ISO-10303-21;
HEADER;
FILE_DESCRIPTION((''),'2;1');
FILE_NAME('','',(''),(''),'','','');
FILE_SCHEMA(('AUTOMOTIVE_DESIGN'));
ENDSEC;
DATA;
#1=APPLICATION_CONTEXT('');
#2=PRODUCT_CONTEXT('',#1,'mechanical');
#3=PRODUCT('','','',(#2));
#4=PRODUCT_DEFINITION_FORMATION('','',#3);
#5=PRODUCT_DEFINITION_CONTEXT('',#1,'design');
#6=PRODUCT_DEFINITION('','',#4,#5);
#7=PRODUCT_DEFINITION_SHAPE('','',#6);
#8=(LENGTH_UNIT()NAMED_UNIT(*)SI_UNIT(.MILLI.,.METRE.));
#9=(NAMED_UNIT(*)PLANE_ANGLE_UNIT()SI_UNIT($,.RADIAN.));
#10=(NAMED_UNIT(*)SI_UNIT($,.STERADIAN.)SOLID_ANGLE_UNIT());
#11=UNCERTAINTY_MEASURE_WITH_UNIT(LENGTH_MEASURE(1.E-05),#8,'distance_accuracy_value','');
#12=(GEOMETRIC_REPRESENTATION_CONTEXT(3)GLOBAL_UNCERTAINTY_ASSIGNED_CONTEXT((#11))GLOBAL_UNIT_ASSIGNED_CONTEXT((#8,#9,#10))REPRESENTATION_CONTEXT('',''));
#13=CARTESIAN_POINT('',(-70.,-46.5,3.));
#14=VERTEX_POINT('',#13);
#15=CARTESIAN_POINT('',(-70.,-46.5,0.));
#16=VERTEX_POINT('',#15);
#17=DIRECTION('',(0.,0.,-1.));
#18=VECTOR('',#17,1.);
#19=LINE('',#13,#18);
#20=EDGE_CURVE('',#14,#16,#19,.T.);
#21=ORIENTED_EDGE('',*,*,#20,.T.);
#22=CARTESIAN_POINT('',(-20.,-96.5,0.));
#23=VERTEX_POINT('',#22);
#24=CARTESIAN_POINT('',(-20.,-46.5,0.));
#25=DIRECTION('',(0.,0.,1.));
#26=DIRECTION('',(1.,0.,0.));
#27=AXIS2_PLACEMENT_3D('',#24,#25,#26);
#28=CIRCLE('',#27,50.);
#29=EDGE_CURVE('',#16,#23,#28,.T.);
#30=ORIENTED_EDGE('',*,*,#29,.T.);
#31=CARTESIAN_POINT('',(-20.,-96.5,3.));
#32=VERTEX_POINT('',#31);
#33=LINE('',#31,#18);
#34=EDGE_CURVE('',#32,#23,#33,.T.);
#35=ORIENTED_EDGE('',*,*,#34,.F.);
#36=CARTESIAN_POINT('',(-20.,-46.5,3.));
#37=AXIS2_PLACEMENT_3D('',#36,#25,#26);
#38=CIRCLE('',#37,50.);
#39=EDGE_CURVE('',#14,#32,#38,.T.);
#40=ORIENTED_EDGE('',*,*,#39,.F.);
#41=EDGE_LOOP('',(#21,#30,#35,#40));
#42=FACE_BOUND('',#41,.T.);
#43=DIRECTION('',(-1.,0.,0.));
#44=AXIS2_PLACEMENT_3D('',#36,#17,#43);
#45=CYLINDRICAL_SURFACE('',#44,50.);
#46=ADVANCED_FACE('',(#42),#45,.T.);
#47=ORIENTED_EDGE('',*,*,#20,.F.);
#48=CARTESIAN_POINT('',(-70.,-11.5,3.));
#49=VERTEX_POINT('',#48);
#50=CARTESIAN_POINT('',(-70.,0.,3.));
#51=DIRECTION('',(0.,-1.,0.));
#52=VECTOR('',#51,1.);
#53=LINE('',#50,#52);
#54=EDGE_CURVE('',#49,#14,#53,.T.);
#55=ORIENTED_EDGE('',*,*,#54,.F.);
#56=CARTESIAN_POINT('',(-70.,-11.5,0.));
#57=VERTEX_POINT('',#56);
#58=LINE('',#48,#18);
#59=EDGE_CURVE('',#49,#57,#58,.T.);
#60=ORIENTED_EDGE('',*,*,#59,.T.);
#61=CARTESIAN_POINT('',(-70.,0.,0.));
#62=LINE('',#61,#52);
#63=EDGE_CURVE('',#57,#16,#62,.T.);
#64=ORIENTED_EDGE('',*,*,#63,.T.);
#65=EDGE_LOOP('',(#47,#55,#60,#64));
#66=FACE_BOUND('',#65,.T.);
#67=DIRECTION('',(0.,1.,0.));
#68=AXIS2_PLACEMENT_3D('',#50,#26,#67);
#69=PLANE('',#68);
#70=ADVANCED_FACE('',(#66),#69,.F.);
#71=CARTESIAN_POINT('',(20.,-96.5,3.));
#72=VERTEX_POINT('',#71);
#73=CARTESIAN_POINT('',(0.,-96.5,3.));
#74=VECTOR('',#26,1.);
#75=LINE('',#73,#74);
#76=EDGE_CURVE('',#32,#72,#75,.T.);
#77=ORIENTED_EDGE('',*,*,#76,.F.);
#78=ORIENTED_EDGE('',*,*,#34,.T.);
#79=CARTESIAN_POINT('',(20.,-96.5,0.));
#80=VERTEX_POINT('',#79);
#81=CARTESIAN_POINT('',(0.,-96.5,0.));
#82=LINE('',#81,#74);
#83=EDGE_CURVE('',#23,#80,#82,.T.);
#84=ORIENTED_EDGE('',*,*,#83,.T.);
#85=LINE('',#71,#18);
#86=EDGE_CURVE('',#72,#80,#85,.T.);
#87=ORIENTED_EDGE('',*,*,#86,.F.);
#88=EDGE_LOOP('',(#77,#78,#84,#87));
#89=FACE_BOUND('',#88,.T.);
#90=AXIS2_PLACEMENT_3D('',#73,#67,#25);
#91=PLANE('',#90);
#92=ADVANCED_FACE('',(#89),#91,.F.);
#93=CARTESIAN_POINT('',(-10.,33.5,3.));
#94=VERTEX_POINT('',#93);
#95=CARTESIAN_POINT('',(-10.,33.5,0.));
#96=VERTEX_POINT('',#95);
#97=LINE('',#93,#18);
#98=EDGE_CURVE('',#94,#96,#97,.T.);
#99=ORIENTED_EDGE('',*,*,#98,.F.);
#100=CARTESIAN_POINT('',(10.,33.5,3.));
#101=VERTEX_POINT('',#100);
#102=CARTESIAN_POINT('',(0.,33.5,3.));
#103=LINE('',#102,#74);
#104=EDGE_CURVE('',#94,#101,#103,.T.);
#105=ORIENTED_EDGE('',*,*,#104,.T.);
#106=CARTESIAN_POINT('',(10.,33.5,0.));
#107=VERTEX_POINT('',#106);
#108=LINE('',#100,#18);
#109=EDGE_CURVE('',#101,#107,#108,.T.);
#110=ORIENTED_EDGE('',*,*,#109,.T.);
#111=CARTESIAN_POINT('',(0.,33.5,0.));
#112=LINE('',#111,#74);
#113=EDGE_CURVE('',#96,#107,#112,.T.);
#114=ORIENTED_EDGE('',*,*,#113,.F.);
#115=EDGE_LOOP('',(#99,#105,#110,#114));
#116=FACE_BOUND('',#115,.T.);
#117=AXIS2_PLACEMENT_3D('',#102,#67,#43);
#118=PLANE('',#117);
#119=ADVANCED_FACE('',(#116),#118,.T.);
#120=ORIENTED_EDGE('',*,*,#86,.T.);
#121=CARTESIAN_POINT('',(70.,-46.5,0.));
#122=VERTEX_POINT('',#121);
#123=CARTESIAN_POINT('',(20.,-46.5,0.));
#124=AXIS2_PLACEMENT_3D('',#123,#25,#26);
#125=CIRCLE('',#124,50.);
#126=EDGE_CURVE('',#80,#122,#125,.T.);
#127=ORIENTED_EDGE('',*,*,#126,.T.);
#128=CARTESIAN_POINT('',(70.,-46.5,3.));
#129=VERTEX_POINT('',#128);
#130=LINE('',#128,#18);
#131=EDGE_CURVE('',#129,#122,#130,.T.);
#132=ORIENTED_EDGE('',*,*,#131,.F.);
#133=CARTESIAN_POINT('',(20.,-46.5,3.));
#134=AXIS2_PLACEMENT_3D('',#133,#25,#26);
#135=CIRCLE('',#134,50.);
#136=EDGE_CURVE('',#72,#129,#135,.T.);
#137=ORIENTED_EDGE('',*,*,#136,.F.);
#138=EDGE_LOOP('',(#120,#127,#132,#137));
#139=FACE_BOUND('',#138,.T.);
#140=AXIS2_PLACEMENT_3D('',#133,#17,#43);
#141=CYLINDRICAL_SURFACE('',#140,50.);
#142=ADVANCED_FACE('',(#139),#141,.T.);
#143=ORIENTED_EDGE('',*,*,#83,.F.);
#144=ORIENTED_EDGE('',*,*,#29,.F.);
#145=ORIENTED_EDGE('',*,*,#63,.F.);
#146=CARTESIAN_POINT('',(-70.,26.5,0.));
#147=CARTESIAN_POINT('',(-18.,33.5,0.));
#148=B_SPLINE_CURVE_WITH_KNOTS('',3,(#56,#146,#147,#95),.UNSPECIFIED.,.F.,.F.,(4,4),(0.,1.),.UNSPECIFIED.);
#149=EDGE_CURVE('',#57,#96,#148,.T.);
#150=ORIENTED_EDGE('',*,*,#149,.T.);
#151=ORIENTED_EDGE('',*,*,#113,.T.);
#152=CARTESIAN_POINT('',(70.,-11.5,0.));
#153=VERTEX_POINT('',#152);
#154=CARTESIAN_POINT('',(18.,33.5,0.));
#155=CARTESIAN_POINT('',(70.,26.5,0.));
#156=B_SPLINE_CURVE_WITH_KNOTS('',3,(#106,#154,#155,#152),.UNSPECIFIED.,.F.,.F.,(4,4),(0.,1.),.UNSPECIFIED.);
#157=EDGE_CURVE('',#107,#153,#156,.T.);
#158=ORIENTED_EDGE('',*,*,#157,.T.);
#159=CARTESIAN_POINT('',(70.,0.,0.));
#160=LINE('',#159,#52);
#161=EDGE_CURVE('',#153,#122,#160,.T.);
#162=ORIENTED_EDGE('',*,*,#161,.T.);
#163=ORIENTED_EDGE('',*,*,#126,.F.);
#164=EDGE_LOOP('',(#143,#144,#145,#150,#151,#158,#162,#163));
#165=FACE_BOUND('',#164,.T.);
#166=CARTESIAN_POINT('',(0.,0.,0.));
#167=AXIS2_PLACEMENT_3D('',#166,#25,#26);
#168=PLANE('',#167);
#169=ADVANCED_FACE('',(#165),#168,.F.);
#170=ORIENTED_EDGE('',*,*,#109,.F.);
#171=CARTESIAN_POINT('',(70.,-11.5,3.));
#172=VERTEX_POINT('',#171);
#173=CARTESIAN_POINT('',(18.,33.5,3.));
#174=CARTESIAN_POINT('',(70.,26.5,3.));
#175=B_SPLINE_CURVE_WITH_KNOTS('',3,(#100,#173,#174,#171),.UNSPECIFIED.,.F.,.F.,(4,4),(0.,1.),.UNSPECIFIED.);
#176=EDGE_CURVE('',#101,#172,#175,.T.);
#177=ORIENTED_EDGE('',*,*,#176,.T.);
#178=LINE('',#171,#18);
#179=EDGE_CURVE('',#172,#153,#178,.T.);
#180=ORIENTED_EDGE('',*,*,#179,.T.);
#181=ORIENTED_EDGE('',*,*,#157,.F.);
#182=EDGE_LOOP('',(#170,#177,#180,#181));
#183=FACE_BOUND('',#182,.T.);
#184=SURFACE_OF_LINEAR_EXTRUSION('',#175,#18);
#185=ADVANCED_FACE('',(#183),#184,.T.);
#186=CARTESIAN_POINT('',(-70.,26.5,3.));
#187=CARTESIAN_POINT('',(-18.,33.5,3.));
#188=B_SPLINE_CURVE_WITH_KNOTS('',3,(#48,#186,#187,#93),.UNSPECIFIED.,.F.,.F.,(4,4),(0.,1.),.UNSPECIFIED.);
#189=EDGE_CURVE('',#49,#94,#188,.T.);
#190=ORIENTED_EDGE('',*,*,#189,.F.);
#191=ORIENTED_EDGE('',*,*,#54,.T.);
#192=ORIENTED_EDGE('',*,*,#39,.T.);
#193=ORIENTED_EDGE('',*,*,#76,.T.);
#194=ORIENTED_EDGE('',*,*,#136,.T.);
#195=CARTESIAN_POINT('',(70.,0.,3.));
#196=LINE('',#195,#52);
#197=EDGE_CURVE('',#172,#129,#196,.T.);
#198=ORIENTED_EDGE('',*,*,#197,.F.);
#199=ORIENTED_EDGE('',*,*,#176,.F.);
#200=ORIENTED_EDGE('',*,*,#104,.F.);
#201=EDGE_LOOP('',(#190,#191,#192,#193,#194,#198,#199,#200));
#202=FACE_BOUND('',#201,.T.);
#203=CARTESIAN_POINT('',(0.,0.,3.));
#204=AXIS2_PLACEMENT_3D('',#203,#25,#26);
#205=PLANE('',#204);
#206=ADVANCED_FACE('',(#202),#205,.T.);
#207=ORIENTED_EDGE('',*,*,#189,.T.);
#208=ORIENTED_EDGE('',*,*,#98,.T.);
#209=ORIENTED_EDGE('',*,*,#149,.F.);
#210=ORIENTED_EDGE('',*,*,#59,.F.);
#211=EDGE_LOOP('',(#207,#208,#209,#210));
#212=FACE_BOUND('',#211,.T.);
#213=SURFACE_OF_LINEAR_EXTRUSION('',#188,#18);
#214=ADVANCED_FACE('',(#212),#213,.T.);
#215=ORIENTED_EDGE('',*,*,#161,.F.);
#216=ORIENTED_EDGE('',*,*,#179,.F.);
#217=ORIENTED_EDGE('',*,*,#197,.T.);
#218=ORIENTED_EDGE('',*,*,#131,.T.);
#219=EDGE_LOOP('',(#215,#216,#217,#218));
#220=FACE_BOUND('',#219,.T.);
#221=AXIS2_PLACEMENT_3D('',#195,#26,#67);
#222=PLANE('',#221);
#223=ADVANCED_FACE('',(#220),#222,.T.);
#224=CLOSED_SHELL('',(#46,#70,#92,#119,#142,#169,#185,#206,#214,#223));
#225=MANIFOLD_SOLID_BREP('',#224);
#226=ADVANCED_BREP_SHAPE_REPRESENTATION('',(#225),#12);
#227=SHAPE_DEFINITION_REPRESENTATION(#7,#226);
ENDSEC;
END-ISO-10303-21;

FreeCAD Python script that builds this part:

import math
import FreeCAD as App
import Part
import Sketcher

doc = App.newDocument("Part")
params = doc.addObject("Spreadsheet::Sheet", "Params")
for row, (alias, value) in enumerate([
    ("sketch1_radius", "50 mm"),
    ("sketch1_height", "35 mm"),
    ("pad1_length", "3 mm"),
], start=1):
    params.set(f"A{row}", alias)
    params.set(f"B{row}", "=" + value)
    params.setAlias(f"B{row}", alias)

body = doc.addObject("PartDesign::Body", "Body")

sketch1 = body.newObject("Sketcher::SketchObject", "Sketch")
sketch1.AttachmentSupport = (doc.getObject("XY_Plane"), [""])
sketch1.MapMode = "FlatFace"
sketch1.addGeometry(Part.BSplineCurve([App.Vector(-70, -11.5, 0), App.Vector(-70, 26.5, 0), App.Vector(-18, 33.5, 0), App.Vector(-10, 33.5, 0)], [4, 4], [0, 1], False, 3, [1, 1, 1, 1], False), False)
sketch1.addGeometry(Part.LineSegment(App.Vector(-70, -11.5, 0), App.Vector(-70, -46.5, 0)), False)
sketch1.addGeometry(Part.ArcOfCircle(Part.Circle(App.Vector(-20, -46.5, 0), App.Vector(0, 0, 1), 50), math.radians(-180), math.radians(-90)), False)
sketch1.addGeometry(Part.LineSegment(App.Vector(-20, -96.5, 0), App.Vector(20, -96.5, 0)), False)
sketch1.addGeometry(Part.ArcOfCircle(Part.Circle(App.Vector(20, -46.5, 0), App.Vector(0, 0, 1), 50), math.radians(-90), math.radians(0)), False)
sketch1.addGeometry(Part.LineSegment(App.Vector(70, -46.5, 0), App.Vector(70, -11.5, 0)), False)
sketch1.addGeometry(Part.BSplineCurve([App.Vector(10, 33.5, 0), App.Vector(18, 33.5, 0), App.Vector(70, 26.5, 0), App.Vector(70, -11.5, 0)], [4, 4], [0, 1], False, 3, [1, 1, 1, 1], False), False)
sketch1.addGeometry(Part.LineSegment(App.Vector(10, 33.5, 0), App.Vector(-10, 33.5, 0)), False)
sketch1.addConstraint(Sketcher.Constraint("Block", 0))
sketch1.addConstraint(Sketcher.Constraint("Block", 6))
sketch1.addConstraint(Sketcher.Constraint("Coincident", 0, 1, 1, 1))
sketch1.addConstraint(Sketcher.Constraint("Tangent", 1, 2, 2, 1))
sketch1.addConstraint(Sketcher.Constraint("Tangent", 2, 2, 3, 1))
sketch1.addConstraint(Sketcher.Constraint("Tangent", 3, 2, 4, 1))
sketch1.addConstraint(Sketcher.Constraint("Tangent", 4, 2, 5, 1))
sketch1.addConstraint(Sketcher.Constraint("Coincident", 5, 2, 6, 2))
sketch1.addConstraint(Sketcher.Constraint("Coincident", 6, 1, 7, 1))
sketch1.addConstraint(Sketcher.Constraint("Coincident", 7, 2, 0, 2))
sketch1.addConstraint(Sketcher.Constraint("Vertical", 1))
sketch1.addConstraint(Sketcher.Constraint("Horizontal", 3))
sketch1.addConstraint(Sketcher.Constraint("Vertical", 5))
sketch1.addConstraint(Sketcher.Constraint("Equal", 2, 4))
sketch1.addConstraint(Sketcher.Constraint("Radius", 2, 50.0))
sketch1.addConstraint(Sketcher.Constraint("DistanceY", 1, 2, 1, 1, 35.0))
sketch1.setExpression("Constraints[14]", "Params.sketch1_radius")
sketch1.setExpression("Constraints[15]", "Params.sketch1_height")
pad1 = body.newObject("PartDesign::Pad", "Pad")
pad1.Profile = sketch1
pad1.setExpression("Length", "Params.pad1_length")

doc.recompute()
